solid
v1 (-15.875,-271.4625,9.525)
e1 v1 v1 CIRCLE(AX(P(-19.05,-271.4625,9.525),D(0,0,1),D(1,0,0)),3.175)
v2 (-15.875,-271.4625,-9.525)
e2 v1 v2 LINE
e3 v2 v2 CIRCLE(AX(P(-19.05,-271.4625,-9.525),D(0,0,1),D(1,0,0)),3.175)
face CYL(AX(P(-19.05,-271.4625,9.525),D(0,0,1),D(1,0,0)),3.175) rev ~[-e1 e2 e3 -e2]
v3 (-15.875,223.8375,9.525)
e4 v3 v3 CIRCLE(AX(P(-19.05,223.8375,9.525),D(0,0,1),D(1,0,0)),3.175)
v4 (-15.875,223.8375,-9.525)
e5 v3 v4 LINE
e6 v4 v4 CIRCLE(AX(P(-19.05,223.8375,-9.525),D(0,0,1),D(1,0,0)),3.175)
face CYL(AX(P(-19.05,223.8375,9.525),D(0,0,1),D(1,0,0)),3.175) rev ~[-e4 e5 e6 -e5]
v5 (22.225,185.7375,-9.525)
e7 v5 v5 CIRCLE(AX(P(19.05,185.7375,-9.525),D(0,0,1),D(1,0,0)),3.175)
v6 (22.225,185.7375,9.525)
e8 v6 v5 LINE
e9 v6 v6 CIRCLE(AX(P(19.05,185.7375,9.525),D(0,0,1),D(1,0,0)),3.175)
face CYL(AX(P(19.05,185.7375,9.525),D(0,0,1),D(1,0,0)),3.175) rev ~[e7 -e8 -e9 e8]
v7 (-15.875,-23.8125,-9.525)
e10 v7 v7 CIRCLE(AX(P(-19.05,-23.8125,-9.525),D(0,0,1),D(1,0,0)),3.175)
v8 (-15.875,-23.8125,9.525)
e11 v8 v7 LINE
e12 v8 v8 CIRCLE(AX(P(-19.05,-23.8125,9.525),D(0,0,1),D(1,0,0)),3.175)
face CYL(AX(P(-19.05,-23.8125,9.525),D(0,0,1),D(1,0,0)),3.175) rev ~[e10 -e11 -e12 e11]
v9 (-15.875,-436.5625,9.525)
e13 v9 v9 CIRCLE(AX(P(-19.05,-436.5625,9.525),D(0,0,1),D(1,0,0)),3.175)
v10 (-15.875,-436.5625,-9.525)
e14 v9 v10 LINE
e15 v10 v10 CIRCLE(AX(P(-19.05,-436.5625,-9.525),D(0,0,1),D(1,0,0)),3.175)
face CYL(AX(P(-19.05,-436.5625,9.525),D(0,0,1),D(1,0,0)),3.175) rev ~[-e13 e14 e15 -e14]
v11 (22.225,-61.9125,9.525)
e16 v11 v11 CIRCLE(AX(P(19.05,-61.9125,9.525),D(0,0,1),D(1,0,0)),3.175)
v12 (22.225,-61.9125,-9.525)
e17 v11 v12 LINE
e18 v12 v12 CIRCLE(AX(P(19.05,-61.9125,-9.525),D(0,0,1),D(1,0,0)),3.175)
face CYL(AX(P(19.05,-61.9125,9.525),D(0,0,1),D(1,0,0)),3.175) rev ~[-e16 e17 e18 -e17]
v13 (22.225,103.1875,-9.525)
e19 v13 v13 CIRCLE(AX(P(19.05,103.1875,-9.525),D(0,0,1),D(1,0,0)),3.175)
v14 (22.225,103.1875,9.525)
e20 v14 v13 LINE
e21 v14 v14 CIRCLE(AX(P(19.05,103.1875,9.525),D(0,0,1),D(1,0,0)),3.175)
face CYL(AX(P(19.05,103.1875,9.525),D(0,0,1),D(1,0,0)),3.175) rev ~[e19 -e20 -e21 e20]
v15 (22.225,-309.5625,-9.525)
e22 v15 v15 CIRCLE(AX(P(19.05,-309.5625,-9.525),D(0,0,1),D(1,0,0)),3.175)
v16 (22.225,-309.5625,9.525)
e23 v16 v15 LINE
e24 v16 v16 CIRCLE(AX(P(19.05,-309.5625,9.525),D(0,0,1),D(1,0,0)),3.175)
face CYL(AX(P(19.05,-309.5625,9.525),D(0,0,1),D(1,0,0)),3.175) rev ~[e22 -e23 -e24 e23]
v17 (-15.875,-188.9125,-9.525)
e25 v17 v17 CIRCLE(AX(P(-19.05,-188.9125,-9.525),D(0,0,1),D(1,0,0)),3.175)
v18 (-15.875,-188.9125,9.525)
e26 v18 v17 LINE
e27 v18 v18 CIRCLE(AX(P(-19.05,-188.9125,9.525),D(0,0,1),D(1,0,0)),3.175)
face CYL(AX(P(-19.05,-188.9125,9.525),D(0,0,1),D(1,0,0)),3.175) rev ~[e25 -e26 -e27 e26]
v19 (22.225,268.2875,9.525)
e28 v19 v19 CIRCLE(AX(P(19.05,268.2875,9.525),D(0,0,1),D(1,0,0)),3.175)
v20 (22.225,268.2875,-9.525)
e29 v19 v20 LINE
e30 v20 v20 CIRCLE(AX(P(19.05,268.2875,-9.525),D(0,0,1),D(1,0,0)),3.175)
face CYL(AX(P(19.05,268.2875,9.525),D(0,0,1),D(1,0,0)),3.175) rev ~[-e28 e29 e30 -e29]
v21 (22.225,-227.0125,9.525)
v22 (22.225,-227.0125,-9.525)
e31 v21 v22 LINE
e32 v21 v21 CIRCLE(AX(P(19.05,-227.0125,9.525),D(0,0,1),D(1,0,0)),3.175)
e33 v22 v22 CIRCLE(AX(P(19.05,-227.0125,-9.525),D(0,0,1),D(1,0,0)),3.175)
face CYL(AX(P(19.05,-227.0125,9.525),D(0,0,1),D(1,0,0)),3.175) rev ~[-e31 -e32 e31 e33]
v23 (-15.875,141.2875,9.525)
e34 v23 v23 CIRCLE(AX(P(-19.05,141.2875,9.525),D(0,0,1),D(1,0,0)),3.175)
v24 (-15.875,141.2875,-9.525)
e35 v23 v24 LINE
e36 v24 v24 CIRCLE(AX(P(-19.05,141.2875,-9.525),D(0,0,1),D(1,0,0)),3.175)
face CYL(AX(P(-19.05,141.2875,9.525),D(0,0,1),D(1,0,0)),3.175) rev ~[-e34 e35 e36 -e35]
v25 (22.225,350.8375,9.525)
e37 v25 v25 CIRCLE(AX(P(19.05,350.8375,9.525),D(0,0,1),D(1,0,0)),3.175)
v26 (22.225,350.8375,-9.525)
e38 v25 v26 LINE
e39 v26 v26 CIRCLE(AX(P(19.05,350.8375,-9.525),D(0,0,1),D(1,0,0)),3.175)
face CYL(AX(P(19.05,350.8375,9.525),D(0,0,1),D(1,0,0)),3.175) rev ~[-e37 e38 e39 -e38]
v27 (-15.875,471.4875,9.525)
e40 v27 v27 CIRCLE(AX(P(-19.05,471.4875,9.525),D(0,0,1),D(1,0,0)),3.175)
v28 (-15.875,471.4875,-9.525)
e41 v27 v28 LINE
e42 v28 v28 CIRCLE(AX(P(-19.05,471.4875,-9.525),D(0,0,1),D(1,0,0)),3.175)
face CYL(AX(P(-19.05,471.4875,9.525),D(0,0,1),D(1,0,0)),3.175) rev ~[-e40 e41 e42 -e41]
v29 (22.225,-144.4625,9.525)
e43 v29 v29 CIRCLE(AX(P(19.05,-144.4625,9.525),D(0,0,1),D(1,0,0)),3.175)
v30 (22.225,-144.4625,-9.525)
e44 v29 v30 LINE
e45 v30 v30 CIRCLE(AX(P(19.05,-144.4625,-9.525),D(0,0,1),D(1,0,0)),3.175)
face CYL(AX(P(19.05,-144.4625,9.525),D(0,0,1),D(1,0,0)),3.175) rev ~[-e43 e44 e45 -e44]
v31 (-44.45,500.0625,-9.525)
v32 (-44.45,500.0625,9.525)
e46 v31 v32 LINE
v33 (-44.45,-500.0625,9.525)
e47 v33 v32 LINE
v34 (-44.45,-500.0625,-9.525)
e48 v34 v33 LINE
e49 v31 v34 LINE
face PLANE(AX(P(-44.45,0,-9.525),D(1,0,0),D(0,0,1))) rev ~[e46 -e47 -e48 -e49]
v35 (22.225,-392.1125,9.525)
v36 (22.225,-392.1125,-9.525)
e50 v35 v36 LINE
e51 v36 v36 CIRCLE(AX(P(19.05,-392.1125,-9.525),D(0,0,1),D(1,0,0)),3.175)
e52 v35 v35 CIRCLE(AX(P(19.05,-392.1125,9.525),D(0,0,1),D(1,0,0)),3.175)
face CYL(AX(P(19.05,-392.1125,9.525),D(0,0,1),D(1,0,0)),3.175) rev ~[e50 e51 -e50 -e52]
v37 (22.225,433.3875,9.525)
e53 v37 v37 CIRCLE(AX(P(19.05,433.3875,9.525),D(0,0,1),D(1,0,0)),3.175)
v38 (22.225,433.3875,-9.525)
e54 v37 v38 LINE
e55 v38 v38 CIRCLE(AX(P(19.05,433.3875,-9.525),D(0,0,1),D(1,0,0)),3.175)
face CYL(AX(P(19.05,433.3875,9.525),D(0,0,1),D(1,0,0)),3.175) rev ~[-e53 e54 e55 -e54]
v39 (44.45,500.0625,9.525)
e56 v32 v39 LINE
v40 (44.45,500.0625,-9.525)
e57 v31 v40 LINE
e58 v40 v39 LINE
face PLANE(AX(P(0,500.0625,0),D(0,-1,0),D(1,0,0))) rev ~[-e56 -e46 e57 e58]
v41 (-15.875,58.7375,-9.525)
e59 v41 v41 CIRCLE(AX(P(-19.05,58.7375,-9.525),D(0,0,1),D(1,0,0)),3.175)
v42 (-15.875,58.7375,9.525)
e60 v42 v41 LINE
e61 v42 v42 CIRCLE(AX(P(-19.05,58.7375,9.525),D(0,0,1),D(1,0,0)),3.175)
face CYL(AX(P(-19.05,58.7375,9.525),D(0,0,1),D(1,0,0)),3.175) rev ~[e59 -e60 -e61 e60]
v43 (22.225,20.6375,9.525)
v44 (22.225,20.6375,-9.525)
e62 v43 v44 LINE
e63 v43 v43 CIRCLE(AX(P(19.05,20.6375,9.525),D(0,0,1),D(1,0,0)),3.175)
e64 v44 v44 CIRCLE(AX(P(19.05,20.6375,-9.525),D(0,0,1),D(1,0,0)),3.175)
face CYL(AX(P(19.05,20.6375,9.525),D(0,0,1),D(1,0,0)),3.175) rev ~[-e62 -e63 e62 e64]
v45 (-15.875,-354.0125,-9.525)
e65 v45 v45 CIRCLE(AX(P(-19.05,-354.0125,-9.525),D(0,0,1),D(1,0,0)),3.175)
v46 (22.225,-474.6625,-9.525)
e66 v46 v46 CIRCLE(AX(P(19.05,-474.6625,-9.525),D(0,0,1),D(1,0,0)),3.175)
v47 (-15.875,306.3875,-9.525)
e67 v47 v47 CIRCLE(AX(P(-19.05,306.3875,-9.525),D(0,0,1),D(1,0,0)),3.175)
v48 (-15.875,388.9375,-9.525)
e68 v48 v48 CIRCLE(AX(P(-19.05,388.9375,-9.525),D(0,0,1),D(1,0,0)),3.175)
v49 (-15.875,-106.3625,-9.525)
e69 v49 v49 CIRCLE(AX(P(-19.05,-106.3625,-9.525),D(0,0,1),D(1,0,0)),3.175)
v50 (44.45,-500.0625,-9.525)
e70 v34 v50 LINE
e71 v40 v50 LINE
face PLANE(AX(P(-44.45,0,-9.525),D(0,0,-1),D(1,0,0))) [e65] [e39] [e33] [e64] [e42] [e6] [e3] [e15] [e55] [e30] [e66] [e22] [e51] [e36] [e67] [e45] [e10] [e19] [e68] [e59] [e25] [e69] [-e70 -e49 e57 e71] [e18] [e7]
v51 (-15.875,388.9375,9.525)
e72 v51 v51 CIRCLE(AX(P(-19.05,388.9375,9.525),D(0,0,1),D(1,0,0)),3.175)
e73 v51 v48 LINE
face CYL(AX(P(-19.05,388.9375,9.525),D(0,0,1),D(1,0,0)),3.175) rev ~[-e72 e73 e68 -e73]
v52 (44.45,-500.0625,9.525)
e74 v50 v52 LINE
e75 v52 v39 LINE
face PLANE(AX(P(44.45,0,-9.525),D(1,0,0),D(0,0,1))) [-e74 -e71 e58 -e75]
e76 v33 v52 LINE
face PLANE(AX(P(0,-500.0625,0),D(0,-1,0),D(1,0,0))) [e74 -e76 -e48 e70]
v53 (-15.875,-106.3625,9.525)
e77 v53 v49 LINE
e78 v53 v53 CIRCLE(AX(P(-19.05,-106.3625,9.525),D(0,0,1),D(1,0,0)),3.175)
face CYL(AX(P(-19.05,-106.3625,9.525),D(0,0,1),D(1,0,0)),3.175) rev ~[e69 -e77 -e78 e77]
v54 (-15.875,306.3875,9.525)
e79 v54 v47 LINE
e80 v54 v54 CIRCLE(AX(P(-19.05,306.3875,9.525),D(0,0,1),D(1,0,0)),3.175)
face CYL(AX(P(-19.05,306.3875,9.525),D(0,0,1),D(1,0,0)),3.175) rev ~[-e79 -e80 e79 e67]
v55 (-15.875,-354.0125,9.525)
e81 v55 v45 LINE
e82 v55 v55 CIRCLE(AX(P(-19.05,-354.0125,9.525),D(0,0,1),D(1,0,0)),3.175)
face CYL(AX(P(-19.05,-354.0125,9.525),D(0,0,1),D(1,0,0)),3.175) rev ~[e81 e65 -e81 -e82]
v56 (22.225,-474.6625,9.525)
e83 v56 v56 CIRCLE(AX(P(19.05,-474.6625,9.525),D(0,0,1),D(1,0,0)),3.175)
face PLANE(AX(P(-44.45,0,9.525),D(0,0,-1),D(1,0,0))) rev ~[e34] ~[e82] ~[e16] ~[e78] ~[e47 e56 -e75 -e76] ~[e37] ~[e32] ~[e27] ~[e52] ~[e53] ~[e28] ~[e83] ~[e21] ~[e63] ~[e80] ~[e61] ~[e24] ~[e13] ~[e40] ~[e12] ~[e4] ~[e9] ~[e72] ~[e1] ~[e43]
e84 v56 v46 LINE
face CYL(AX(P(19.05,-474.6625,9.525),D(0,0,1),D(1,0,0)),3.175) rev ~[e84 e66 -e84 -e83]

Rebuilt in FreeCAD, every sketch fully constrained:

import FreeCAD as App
import Part
import Sketcher
Q = App.Units.Quantity


def add_polygon(sketch, points):
    """Adds a closed chain of lines whose ends are joined by coincident constraints."""
    first, n = sketch.GeometryCount, len(points)
    for a, b in zip(points, points[1:] + points[:1]):
        sketch.addGeometry(Part.LineSegment(App.Vector(*a, 0), App.Vector(*b, 0)), False)
    for i in range(n):
        sketch.addConstraint(Sketcher.Constraint("Coincident", first + i, 2, first + (i + 1) % n, 1))

doc = App.newDocument("Part")
params = doc.addObject("Spreadsheet::Sheet", "Params")
for row, (alias, value) in enumerate([
    ("sketch1_width", "3.5 in"),
    ("sketch1_height", "0.75 in"),
    ("pad1_length", "39.375 in"),
    ("sketch2_diameter", "0.25 in"),
], start=1):
    params.set(f"A{row}", alias)
    params.set(f"B{row}", "=" + value)
    params.setAlias(f"B{row}", alias)

body = doc.addObject("PartDesign::Body", "Body")

# Sketch on XZ plane
sketch1 = body.newObject("Sketcher::SketchObject", "Sketch")
sketch1.AttachmentSupport = (doc.getObject("XZ_Plane"), [""])
sketch1.MapMode = "FlatFace"
add_polygon(sketch1, [(-44, 10), (-44, -10), (44, -10), (44, 10)])  # lines 0-3
sketch1.addConstraint(Sketcher.Constraint("Vertical", 0))
sketch1.addConstraint(Sketcher.Constraint("Horizontal", 1))
sketch1.addConstraint(Sketcher.Constraint("Vertical", 2))
sketch1.addConstraint(Sketcher.Constraint("Horizontal", 3))
sketch1.addConstraint(Sketcher.Constraint("Symmetric", 0, 2, 2, 2, -1, 1))
sketch1.addConstraint(Sketcher.Constraint("DistanceX", 1, 1, 1, 2, Q("3.5 in")))
sketch1.addConstraint(Sketcher.Constraint("DistanceY", 0, 2, 0, 1, Q("0.75 in")))
sketch1.setExpression("Constraints[9]", "Params.sketch1_width")
sketch1.setExpression("Constraints[10]", "Params.sketch1_height")
pad1 = body.newObject("PartDesign::Pad", "Pad")
pad1.Profile = sketch1
pad1.setExpression("Length", "Params.pad1_length")
pad1.Midplane = True

# Sketch on XY plane
sketch2 = body.newObject("Sketcher::SketchObject", "Sketch001")
sketch2.AttachmentSupport = (doc.getObject("XY_Plane"), [""])
sketch2.MapMode = "FlatFace"
sketch2.AttachmentOffset = App.Placement(App.Vector(0, 0, 0.375 * 25.4), App.Rotation())
sketch2.addGeometry(Part.Circle(App.Vector(19.1, -474.7, 0), App.Vector(0, 0, 1), 3.2), False)
sketch2.addGeometry(Part.Circle(App.Vector(-19.1, -436.6, 0), App.Vector(0, 0, 1), 3.2), False)
sketch2.addGeometry(Part.Circle(App.Vector(-19.1, -354, 0), App.Vector(0, 0, 1), 3.2), False)
sketch2.addGeometry(Part.Circle(App.Vector(19.1, -392.1, 0), App.Vector(0, 0, 1), 3.2), False)
sketch2.addGeometry(Part.Circle(App.Vector(-19.1, -271.5, 0), App.Vector(0, 0, 1), 3.2), False)
sketch2.addGeometry(Part.Circle(App.Vector(19.1, -309.6, 0), App.Vector(0, 0, 1), 3.2), False)
sketch2.addGeometry(Part.Circle(App.Vector(-19.1, -188.9, 0), App.Vector(0, 0, 1), 3.2), False)
sketch2.addGeometry(Part.Circle(App.Vector(19.1, -227, 0), App.Vector(0, 0, 1), 3.2), False)
sketch2.addGeometry(Part.Circle(App.Vector(-19.1, -106.4, 0), App.Vector(0, 0, 1), 3.2), False)
sketch2.addGeometry(Part.Circle(App.Vector(19.1, -144.5, 0), App.Vector(0, 0, 1), 3.2), False)
sketch2.addGeometry(Part.Circle(App.Vector(-19.1, -23.8, 0), App.Vector(0, 0, 1), 3.2), False)
sketch2.addGeometry(Part.Circle(App.Vector(19.1, -61.9, 0), App.Vector(0, 0, 1), 3.2), False)
sketch2.addGeometry(Part.Circle(App.Vector(-19.1, 58.7, 0), App.Vector(0, 0, 1), 3.2), False)
sketch2.addGeometry(Part.Circle(App.Vector(19.1, 20.6, 0), App.Vector(0, 0, 1), 3.2), False)
sketch2.addGeometry(Part.Circle(App.Vector(-19.1, 141.3, 0), App.Vector(0, 0, 1), 3.2), False)
sketch2.addGeometry(Part.Circle(App.Vector(19.1, 103.2, 0), App.Vector(0, 0, 1), 3.2), False)
sketch2.addGeometry(Part.Circle(App.Vector(-19.1, 223.8, 0), App.Vector(0, 0, 1), 3.2), False)
sketch2.addGeometry(Part.Circle(App.Vector(19.1, 185.7, 0), App.Vector(0, 0, 1), 3.2), False)
sketch2.addGeometry(Part.Circle(App.Vector(-19.1, 306.4, 0), App.Vector(0, 0, 1), 3.2), False)
sketch2.addGeometry(Part.Circle(App.Vector(19.1, 268.3, 0), App.Vector(0, 0, 1), 3.2), False)
sketch2.addGeometry(Part.Circle(App.Vector(-19.1, 388.9, 0), App.Vector(0, 0, 1), 3.2), False)
sketch2.addGeometry(Part.Circle(App.Vector(19.1, 350.8, 0), App.Vector(0, 0, 1), 3.2), False)
sketch2.addGeometry(Part.Circle(App.Vector(-19.1, 471.5, 0), App.Vector(0, 0, 1), 3.2), False)
sketch2.addGeometry(Part.Circle(App.Vector(19.1, 433.4, 0), App.Vector(0, 0, 1), 3.2), False)
sketch2.addConstraint(Sketcher.Constraint("Equal", 0, 1))
sketch2.addConstraint(Sketcher.Constraint("Equal", 1, 2))
sketch2.addConstraint(Sketcher.Constraint("Equal", 2, 3))
sketch2.addConstraint(Sketcher.Constraint("Equal", 3, 4))
sketch2.addConstraint(Sketcher.Constraint("Equal", 4, 5))
sketch2.addConstraint(Sketcher.Constraint("Equal", 5, 6))
sketch2.addConstraint(Sketcher.Constraint("Equal", 6, 7))
sketch2.addConstraint(Sketcher.Constraint("Equal", 7, 8))
sketch2.addConstraint(Sketcher.Constraint("Equal", 8, 9))
sketch2.addConstraint(Sketcher.Constraint("Equal", 9, 10))
sketch2.addConstraint(Sketcher.Constraint("Equal", 10, 11))
sketch2.addConstraint(Sketcher.Constraint("Equal", 11, 12))
sketch2.addConstraint(Sketcher.Constraint("Equal", 12, 13))
sketch2.addConstraint(Sketcher.Constraint("Equal", 13, 14))
sketch2.addConstraint(Sketcher.Constraint("Equal", 14, 15))
sketch2.addConstraint(Sketcher.Constraint("Equal", 15, 16))
sketch2.addConstraint(Sketcher.Constraint("Equal", 16, 17))
sketch2.addConstraint(Sketcher.Constraint("Equal", 17, 18))
sketch2.addConstraint(Sketcher.Constraint("Equal", 18, 19))
sketch2.addConstraint(Sketcher.Constraint("Equal", 19, 20))
sketch2.addConstraint(Sketcher.Constraint("Equal", 20, 21))
sketch2.addConstraint(Sketcher.Constraint("Equal", 21, 22))
sketch2.addConstraint(Sketcher.Constraint("Equal", 22, 23))
sketch2.addConstraint(Sketcher.Constraint("Vertical", 1, 3, 2, 3))
sketch2.addConstraint(Sketcher.Constraint("Vertical", 0, 3, 3, 3))
sketch2.addConstraint(Sketcher.Constraint("Vertical", 2, 3, 4, 3))
sketch2.addConstraint(Sketcher.Constraint("Vertical", 3, 3, 5, 3))
sketch2.addConstraint(Sketcher.Constraint("Vertical", 4, 3, 6, 3))
sketch2.addConstraint(Sketcher.Constraint("Vertical", 5, 3, 7, 3))
sketch2.addConstraint(Sketcher.Constraint("Vertical", 6, 3, 8, 3))
sketch2.addConstraint(Sketcher.Constraint("Vertical", 7, 3, 9, 3))
sketch2.addConstraint(Sketcher.Constraint("Vertical", 8, 3, 10, 3))
sketch2.addConstraint(Sketcher.Constraint("Vertical", 9, 3, 11, 3))
sketch2.addConstraint(Sketcher.Constraint("Vertical", 10, 3, 12, 3))
sketch2.addConstraint(Sketcher.Constraint("Vertical", 11, 3, 13, 3))
sketch2.addConstraint(Sketcher.Constraint("Vertical", 12, 3, 14, 3))
sketch2.addConstraint(Sketcher.Constraint("Vertical", 13, 3, 15, 3))
sketch2.addConstraint(Sketcher.Constraint("Vertical", 14, 3, 16, 3))
sketch2.addConstraint(Sketcher.Constraint("Vertical", 15, 3, 17, 3))
sketch2.addConstraint(Sketcher.Constraint("Vertical", 16, 3, 18, 3))
sketch2.addConstraint(Sketcher.Constraint("Vertical", 17, 3, 19, 3))
sketch2.addConstraint(Sketcher.Constraint("Vertical", 18, 3, 20, 3))
sketch2.addConstraint(Sketcher.Constraint("Vertical", 19, 3, 21, 3))
sketch2.addConstraint(Sketcher.Constraint("Vertical", 20, 3, 22, 3))
sketch2.addConstraint(Sketcher.Constraint("Vertical", 21, 3, 23, 3))
sketch2.addConstraint(Sketcher.Constraint("Diameter", 0, Q("0.25 in")))
sketch2.addConstraint(Sketcher.Constraint("DistanceY", 0, 3, 4, 3, Q("8 in")))
sketch2.addConstraint(Sketcher.Constraint("DistanceY", 1, 3, 5, 3, Q("5 in")))
sketch2.addConstraint(Sketcher.Constraint("DistanceY", 3, 3, 6, 3, Q("8 in")))
sketch2.addConstraint(Sketcher.Constraint("DistanceY", 2, 3, 7, 3, Q("5 in")))
sketch2.addConstraint(Sketcher.Constraint("DistanceY", 5, 3, 8, 3, Q("8 in")))
sketch2.addConstraint(Sketcher.Constraint("DistanceY", 4, 3, 9, 3, Q("5 in")))
sketch2.addConstraint(Sketcher.Constraint("DistanceY", 7, 3, 10, 3, Q("8 in")))
sketch2.addConstraint(Sketcher.Constraint("DistanceY", 6, 3, 11, 3, Q("5 in")))
sketch2.addConstraint(Sketcher.Constraint("DistanceY", 9, 3, 12, 3, Q("8 in")))
sketch2.addConstraint(Sketcher.Constraint("DistanceY", 8, 3, 13, 3, Q("5 in")))
sketch2.addConstraint(Sketcher.Constraint("DistanceY", 11, 3, 14, 3, Q("8 in")))
sketch2.addConstraint(Sketcher.Constraint("DistanceY", 10, 3, 15, 3, Q("5 in")))
sketch2.addConstraint(Sketcher.Constraint("DistanceY", 13, 3, 16, 3, Q("8 in")))
sketch2.addConstraint(Sketcher.Constraint("DistanceY", 12, 3, 17, 3, Q("5 in")))
sketch2.addConstraint(Sketcher.Constraint("DistanceY", 15, 3, 18, 3, Q("8 in")))
sketch2.addConstraint(Sketcher.Constraint("DistanceY", 14, 3, 19, 3, Q("5 in")))
sketch2.addConstraint(Sketcher.Constraint("DistanceY", 17, 3, 20, 3, Q("8 in")))
sketch2.addConstraint(Sketcher.Constraint("DistanceY", 16, 3, 21, 3, Q("5 in")))
sketch2.addConstraint(Sketcher.Constraint("DistanceY", 19, 3, 22, 3, Q("8 in")))
sketch2.addConstraint(Sketcher.Constraint("DistanceY", 18, 3, 23, 3, Q("5 in")))
sketch2.addConstraint(Sketcher.Constraint("DistanceX", 1, 3, 0, 3, Q("1.5 in")))
sketch2.addConstraint(Sketcher.Constraint("DistanceY", 0, 3, 1, 3, Q("1.5 in")))
sketch2.addConstraint(Sketcher.Constraint("DistanceY", 3, 3, 2, 3, Q("1.5 in")))
sketch2.addConstraint(Sketcher.Constraint("DistanceX", -1, 1, 0, 3, Q("0.75 in")))
sketch2.addConstraint(Sketcher.Constraint("DistanceY", 1, 3, 2, 3, Q("3.25 in")))
sketch2.addConstraint(Sketcher.Constraint("DistanceY", 0, 3, -1, 1, Q("18.6875 in")))
sketch2.setExpression("Constraints[45]", "Params.sketch2_diameter")
pocket1 = body.newObject("PartDesign::Pocket", "Pocket")
pocket1.Profile = sketch2
pocket1.Type = "ThroughAll"

doc.recompute()
